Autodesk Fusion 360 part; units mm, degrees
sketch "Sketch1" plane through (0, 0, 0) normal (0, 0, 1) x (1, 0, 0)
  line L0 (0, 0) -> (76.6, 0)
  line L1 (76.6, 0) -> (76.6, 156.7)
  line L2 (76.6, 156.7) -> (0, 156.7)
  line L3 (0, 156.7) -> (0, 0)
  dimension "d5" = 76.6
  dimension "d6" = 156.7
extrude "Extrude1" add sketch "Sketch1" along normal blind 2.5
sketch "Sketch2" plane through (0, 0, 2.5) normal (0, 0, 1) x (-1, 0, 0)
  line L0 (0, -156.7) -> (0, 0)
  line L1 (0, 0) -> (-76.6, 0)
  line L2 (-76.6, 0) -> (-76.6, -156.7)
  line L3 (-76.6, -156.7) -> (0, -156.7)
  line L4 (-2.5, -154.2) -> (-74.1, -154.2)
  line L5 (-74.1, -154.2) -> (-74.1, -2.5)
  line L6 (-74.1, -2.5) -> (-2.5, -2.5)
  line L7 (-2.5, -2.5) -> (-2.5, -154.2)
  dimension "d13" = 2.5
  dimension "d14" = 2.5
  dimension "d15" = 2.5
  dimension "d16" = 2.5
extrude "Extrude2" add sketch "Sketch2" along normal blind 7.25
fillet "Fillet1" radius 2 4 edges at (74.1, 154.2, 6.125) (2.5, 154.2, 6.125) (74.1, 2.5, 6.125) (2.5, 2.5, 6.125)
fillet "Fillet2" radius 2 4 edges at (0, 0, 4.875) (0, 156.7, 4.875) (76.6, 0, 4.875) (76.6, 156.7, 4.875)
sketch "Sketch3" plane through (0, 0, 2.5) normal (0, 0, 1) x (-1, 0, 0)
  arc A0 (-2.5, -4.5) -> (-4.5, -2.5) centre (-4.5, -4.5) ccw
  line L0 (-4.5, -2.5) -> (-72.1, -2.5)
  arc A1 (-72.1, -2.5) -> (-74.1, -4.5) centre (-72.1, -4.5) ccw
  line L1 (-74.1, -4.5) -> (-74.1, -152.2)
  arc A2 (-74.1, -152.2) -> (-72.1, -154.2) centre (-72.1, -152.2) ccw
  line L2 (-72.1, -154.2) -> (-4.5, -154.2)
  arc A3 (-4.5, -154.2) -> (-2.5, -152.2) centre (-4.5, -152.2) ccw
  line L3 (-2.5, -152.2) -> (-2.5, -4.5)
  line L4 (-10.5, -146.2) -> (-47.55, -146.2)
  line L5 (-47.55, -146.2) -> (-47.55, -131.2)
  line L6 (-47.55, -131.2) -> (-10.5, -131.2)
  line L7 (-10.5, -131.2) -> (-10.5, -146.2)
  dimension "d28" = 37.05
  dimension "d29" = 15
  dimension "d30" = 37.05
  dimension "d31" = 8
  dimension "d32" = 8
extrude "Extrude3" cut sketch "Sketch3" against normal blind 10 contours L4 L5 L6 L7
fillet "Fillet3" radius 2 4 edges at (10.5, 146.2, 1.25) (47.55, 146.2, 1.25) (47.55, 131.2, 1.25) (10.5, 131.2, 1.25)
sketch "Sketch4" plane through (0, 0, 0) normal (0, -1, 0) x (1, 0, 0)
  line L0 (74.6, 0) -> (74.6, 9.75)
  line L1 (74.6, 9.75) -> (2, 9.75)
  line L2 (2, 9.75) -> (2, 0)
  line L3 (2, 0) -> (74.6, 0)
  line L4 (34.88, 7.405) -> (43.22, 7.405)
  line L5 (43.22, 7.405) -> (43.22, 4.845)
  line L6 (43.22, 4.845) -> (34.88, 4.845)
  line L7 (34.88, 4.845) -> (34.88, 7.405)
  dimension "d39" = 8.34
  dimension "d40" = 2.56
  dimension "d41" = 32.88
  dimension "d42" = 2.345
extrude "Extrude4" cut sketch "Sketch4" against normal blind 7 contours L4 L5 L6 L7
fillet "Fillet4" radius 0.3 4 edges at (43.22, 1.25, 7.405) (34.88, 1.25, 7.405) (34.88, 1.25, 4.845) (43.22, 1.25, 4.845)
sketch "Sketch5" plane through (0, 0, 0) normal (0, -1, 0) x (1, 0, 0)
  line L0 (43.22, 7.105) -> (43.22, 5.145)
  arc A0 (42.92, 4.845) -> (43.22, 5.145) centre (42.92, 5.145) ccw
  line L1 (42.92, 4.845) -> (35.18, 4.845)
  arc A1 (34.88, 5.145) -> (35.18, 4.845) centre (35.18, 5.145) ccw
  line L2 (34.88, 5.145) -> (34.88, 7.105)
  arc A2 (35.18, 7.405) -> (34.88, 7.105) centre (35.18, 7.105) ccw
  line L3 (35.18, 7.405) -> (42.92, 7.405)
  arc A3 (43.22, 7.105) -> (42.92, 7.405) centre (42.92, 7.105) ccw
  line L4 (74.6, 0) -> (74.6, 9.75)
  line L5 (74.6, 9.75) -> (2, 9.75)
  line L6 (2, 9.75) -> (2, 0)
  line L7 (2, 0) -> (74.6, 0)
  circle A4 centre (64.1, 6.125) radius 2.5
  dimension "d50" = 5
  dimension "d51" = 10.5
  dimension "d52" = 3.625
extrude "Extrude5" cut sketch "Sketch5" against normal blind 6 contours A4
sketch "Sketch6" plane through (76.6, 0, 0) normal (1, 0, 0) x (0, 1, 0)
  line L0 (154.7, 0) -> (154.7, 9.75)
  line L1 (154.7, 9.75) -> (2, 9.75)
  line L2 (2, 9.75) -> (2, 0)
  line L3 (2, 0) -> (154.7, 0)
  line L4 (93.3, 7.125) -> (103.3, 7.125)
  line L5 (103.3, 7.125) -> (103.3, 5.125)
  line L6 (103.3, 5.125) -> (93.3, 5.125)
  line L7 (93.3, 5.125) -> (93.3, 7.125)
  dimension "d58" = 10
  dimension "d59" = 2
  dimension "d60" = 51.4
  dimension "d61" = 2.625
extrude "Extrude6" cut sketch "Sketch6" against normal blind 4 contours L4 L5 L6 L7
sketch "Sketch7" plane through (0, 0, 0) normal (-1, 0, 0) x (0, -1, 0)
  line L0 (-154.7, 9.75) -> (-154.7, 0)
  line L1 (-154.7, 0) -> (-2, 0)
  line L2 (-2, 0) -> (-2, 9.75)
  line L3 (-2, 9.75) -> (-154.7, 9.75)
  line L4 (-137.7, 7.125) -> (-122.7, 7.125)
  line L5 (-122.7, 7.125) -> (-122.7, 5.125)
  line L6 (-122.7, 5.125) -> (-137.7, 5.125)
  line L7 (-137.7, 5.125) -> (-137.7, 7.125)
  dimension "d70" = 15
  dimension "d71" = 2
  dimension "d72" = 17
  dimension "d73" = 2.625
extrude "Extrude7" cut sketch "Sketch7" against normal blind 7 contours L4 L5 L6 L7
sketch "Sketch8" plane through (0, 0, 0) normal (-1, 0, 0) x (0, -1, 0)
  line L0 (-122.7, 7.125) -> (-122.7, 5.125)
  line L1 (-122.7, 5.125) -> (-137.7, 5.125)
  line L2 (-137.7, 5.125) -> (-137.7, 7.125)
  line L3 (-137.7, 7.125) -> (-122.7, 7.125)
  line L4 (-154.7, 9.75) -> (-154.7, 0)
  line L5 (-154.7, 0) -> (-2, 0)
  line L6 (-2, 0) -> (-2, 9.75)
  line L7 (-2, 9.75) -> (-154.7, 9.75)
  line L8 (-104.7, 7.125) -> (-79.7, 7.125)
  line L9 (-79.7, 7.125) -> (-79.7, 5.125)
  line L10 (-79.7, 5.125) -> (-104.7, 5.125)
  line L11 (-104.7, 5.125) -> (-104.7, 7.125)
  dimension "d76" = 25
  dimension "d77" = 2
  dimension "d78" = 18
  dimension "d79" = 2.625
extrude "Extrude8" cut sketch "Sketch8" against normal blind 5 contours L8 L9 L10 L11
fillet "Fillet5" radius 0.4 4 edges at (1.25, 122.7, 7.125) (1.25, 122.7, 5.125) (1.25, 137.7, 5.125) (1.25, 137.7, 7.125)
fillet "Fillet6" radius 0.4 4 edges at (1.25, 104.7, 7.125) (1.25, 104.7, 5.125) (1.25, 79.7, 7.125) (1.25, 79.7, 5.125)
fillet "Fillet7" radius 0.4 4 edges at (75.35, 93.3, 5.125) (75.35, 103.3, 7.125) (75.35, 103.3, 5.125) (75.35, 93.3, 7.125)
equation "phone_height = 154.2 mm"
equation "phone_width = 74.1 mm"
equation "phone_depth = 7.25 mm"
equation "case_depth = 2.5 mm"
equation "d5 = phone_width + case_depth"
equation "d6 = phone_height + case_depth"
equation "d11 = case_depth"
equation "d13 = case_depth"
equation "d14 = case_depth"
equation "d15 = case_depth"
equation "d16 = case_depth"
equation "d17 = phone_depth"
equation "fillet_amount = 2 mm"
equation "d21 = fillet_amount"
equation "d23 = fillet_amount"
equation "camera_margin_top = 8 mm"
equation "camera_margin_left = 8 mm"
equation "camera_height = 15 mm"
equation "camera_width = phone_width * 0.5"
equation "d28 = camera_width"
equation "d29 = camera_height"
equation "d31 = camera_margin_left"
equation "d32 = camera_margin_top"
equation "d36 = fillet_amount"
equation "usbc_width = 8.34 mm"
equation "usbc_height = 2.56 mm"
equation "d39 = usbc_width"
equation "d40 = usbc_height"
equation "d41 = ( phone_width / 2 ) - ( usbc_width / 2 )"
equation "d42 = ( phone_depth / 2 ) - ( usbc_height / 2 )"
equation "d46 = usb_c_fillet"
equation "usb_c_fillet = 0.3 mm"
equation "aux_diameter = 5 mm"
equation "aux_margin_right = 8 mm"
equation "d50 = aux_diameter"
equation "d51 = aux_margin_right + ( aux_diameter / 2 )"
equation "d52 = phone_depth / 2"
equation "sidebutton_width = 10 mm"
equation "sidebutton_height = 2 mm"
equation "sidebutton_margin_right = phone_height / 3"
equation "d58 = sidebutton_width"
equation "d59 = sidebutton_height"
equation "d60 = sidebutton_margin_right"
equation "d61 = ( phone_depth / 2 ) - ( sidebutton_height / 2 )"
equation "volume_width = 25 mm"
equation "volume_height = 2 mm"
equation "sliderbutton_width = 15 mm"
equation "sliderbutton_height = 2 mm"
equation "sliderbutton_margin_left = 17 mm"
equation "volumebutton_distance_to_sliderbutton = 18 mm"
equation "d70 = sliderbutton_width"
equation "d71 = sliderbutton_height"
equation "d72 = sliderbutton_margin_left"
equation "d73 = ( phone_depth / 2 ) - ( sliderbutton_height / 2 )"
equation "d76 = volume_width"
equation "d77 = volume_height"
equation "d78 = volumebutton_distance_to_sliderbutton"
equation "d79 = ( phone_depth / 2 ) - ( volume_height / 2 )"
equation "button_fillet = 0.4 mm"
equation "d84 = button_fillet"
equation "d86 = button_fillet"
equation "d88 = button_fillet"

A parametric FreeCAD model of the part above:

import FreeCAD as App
import Part
import Sketcher

V = App.Vector


def edges_at(feature, points):
    """Names of the edges that pass closest to the given points."""
    edges = feature.Shape.Edges
    near = lambda p: min(range(len(edges)), key=lambda i: edges[i].distToShape(Part.Vertex(*p))[0])
    return sorted({f"Edge{near(p) + 1}" for p in points})

doc = App.newDocument("Part")
body = doc.addObject("PartDesign::Body", "Body")

# Sketch on XY plane
sketch1 = body.newObject("Sketcher::SketchObject", "Sketch")
sketch1.AttachmentSupport = (doc.getObject("XY_Plane"), [""])
sketch1.MapMode = "FlatFace"
sketch1.addGeometry(Part.LineSegment(V(0, 156.7, 0), V(0, 0, 0)), False)
sketch1.addGeometry(Part.LineSegment(V(0, 0, 0), V(76.6, 0, 0)), False)
sketch1.addGeometry(Part.LineSegment(V(76.6, 0, 0), V(76.6, 156.7, 0)), False)
sketch1.addGeometry(Part.LineSegment(V(76.6, 156.7, 0), V(0, 156.7, 0)), False)
sketch1.addConstraint(Sketcher.Constraint("Coincident", 0, 2, 1, 1))
sketch1.addConstraint(Sketcher.Constraint("Coincident", 1, 2, 2, 1))
sketch1.addConstraint(Sketcher.Constraint("Coincident", 2, 2, 3, 1))
sketch1.addConstraint(Sketcher.Constraint("Coincident", 3, 2, 0, 1))
sketch1.addConstraint(Sketcher.Constraint("Vertical", 0))
sketch1.addConstraint(Sketcher.Constraint("Horizontal", 1))
sketch1.addConstraint(Sketcher.Constraint("Vertical", 2))
sketch1.addConstraint(Sketcher.Constraint("Horizontal", 3))
sketch1.addConstraint(Sketcher.Constraint("Coincident", 0, 2, -1, 1))
sketch1.addConstraint(Sketcher.Constraint("DistanceX", 1, 1, 1, 2, 76.6))
sketch1.addConstraint(Sketcher.Constraint("DistanceY", 0, 2, 0, 1, 156.7))
pad1 = body.newObject("PartDesign::Pad", "Pad")
pad1.Profile = sketch1
pad1.Length = 2.5

# Sketch on XY plane
sketch2 = body.newObject("Sketcher::SketchObject", "Sketch001")
sketch2.AttachmentSupport = (doc.getObject("XY_Plane"), [""])
sketch2.MapMode = "FlatFace"
sketch2.AttachmentOffset = App.Placement(V(0, 0, 2.5), App.Rotation())
sketch2.addGeometry(Part.LineSegment(V(76.6, 156.7, 0), V(0, 156.7, 0)), False)
sketch2.addGeometry(Part.LineSegment(V(0, 156.7, 0), V(0, 0, 0)), False)
sketch2.addGeometry(Part.LineSegment(V(0, 0, 0), V(76.6, 0, 0)), False)
sketch2.addGeometry(Part.LineSegment(V(76.6, 0, 0), V(76.6, 156.7, 0)), False)
sketch2.addGeometry(Part.LineSegment(V(2.5, 2.5, 0), V(2.5, 154.2, 0)), False)
sketch2.addGeometry(Part.LineSegment(V(2.5, 154.2, 0), V(74.1, 154.2, 0)), False)
sketch2.addGeometry(Part.LineSegment(V(74.1, 154.2, 0), V(74.1, 2.5, 0)), False)
sketch2.addGeometry(Part.LineSegment(V(74.1, 2.5, 0), V(2.5, 2.5, 0)), False)
sketch2.addConstraint(Sketcher.Constraint("Coincident", 0, 2, 1, 1))
sketch2.addConstraint(Sketcher.Constraint("Coincident", 1, 2, 2, 1))
sketch2.addConstraint(Sketcher.Constraint("Coincident", 2, 2, 3, 1))
sketch2.addConstraint(Sketcher.Constraint("Coincident", 3, 2, 0, 1))
sketch2.addConstraint(Sketcher.Constraint("Coincident", 4, 2, 5, 1))
sketch2.addConstraint(Sketcher.Constraint("Coincident", 5, 2, 6, 1))
sketch2.addConstraint(Sketcher.Constraint("Coincident", 6, 2, 7, 1))
sketch2.addConstraint(Sketcher.Constraint("Coincident", 7, 2, 4, 1))
sketch2.addConstraint(Sketcher.Constraint("Horizontal", 0))
sketch2.addConstraint(Sketcher.Constraint("Vertical", 1))
sketch2.addConstraint(Sketcher.Constraint("Horizontal", 2))
sketch2.addConstraint(Sketcher.Constraint("Vertical", 3))
sketch2.addConstraint(Sketcher.Constraint("Vertical", 4))
sketch2.addConstraint(Sketcher.Constraint("Horizontal", 5))
sketch2.addConstraint(Sketcher.Constraint("Vertical", 6))
sketch2.addConstraint(Sketcher.Constraint("Horizontal", 7))
sketch2.addConstraint(Sketcher.Constraint("Coincident", 1, 2, -1, 1))
sketch2.addConstraint(Sketcher.Constraint("DistanceX", -1, 1, 4, 2, 2.5))
sketch2.addConstraint(Sketcher.Constraint("DistanceY", -1, 1, 6, 2, 2.5))
sketch2.addConstraint(Sketcher.Constraint("DistanceY", 4, 2, 0, 2, 2.5))
sketch2.addConstraint(Sketcher.Constraint("DistanceX", 5, 2, 3, 2, 2.5))
sketch2.addConstraint(Sketcher.Constraint("DistanceX", 0, 2, 0, 1, 76.6))
sketch2.addConstraint(Sketcher.Constraint("DistanceY", 1, 2, 1, 1, 156.7))
pad2 = body.newObject("PartDesign::Pad", "Pad001")
pad2.Profile = sketch2
pad2.Length = 7.25
doc.recompute()

fillet = body.newObject("PartDesign::Fillet", "Fillet")
fillet.Base = (pad2, edges_at(pad2, [
    (74.1, 154.2, 6.125),
    (2.5, 154.2, 6.125),
    (74.1, 2.5, 6.125),
    (2.5, 2.5, 6.125),
]))
fillet.Radius = 2
doc.recompute()

fillet2 = body.newObject("PartDesign::Fillet", "Fillet001")
fillet2.Base = (fillet, edges_at(fillet, [
    (0, 0, 4.875),
    (0, 156.7, 4.875),
    (76.6, 0, 4.875),
    (76.6, 156.7, 4.875),
]))
fillet2.Radius = 2

# Sketch on XY plane
sketch3 = body.newObject("Sketcher::SketchObject", "Sketch002")
sketch3.AttachmentSupport = (doc.getObject("XY_Plane"), [""])
sketch3.MapMode = "FlatFace"
sketch3.AttachmentOffset = App.Placement(V(0, 0, 2.5), App.Rotation())
sketch3.addGeometry(Part.LineSegment(V(47.55, 146.2, 0), V(10.5, 146.2, 0)), False)
sketch3.addGeometry(Part.LineSegment(V(10.5, 146.2, 0), V(10.5, 131.2, 0)), False)
sketch3.addGeometry(Part.LineSegment(V(10.5, 131.2, 0), V(47.55, 131.2, 0)), False)
sketch3.addGeometry(Part.LineSegment(V(47.55, 131.2, 0), V(47.55, 146.2, 0)), False)
sketch3.addConstraint(Sketcher.Constraint("Coincident", 0, 2, 1, 1))
sketch3.addConstraint(Sketcher.Constraint("Coincident", 1, 2, 2, 1))
sketch3.addConstraint(Sketcher.Constraint("Coincident", 2, 2, 3, 1))
sketch3.addConstraint(Sketcher.Constraint("Coincident", 3, 2, 0, 1))
sketch3.addConstraint(Sketcher.Constraint("Horizontal", 0))
sketch3.addConstraint(Sketcher.Constraint("Vertical", 1))
sketch3.addConstraint(Sketcher.Constraint("Horizontal", 2))
sketch3.addConstraint(Sketcher.Constraint("Vertical", 3))
sketch3.addConstraint(Sketcher.Constraint("DistanceY", 1, 2, 1, 1, 15.0))
sketch3.addConstraint(Sketcher.Constraint("DistanceX", 0, 2, 0, 1, 37.05))
sketch3.addConstraint(Sketcher.Constraint("DistanceX", -1, 1, 0, 2, 10.5))
sketch3.addConstraint(Sketcher.Constraint("DistanceY", -1, 1, 0, 2, 146.2))
pocket1 = body.newObject("PartDesign::Pocket", "Pocket")
pocket1.Profile = sketch3
pocket1.Length = 10
doc.recompute()

fillet3 = body.newObject("PartDesign::Fillet", "Fillet002")
fillet3.Base = (pocket1, edges_at(pocket1, [
    (10.5, 146.2, 1.25),
    (47.55, 146.2, 1.25),
    (47.55, 131.2, 1.25),
    (10.5, 131.2, 1.25),
]))
fillet3.Radius = 2

# Sketch on XZ plane
sketch4 = body.newObject("Sketcher::SketchObject", "Sketch003")
sketch4.AttachmentSupport = (doc.getObject("XZ_Plane"), [""])
sketch4.MapMode = "FlatFace"
sketch4.addGeometry(Part.LineSegment(V(43.22, 7.405, 0), V(34.88, 7.405, 0)), False)
sketch4.addGeometry(Part.LineSegment(V(34.88, 7.405, 0), V(34.88, 4.845, 0)), False)
sketch4.addGeometry(Part.LineSegment(V(34.88, 4.845, 0), V(43.22, 4.845, 0)), False)
sketch4.addGeometry(Part.LineSegment(V(43.22, 4.845, 0), V(43.22, 7.405, 0)), False)
sketch4.addConstraint(Sketcher.Constraint("Coincident", 0, 2, 1, 1))
sketch4.addConstraint(Sketcher.Constraint("Coincident", 1, 2, 2, 1))
sketch4.addConstraint(Sketcher.Constraint("Coincident", 2, 2, 3, 1))
sketch4.addConstraint(Sketcher.Constraint("Coincident", 3, 2, 0, 1))
sketch4.addConstraint(Sketcher.Constraint("Horizontal", 0))
sketch4.addConstraint(Sketcher.Constraint("Vertical", 1))
sketch4.addConstraint(Sketcher.Constraint("Horizontal", 2))
sketch4.addConstraint(Sketcher.Constraint("Vertical", 3))
sketch4.addConstraint(Sketcher.Constraint("DistanceX", 0, 2, 0, 1, 8.34))
sketch4.addConstraint(Sketcher.Constraint("DistanceY", 1, 2, 1, 1, 2.56))
sketch4.addConstraint(Sketcher.Constraint("DistanceX", -1, 1, 0, 2, 34.88))
sketch4.addConstraint(Sketcher.Constraint("DistanceY", -1, 1, 0, 2, 7.405))
pocket2 = body.newObject("PartDesign::Pocket", "Pocket001")
pocket2.Profile = sketch4
pocket2.Length = 7
doc.recompute()

fillet4 = body.newObject("PartDesign::Fillet", "Fillet003")
fillet4.Base = (pocket2, edges_at(pocket2, [
    (43.22, 1.25, 7.405),
    (34.88, 1.25, 7.405),
    (34.88, 1.25, 4.845),
    (43.22, 1.25, 4.845),
]))
fillet4.Radius = 0.3

# Sketch on XZ plane
sketch5 = body.newObject("Sketcher::SketchObject", "Sketch004")
sketch5.AttachmentSupport = (doc.getObject("XZ_Plane"), [""])
sketch5.MapMode = "FlatFace"
sketch5.addGeometry(Part.Circle(V(64.1, 6.125, 0), V(0, 0, 1), 2.5), False)
sketch5.addConstraint(Sketcher.Constraint("Diameter", 0, 5.0))
sketch5.addConstraint(Sketcher.Constraint("DistanceX", -1, 1, 0, 3, 64.1))
sketch5.addConstraint(Sketcher.Constraint("DistanceY", -1, 1, 0, 3, 6.125))
pocket3 = body.newObject("PartDesign::Pocket", "Pocket002")
pocket3.Profile = sketch5
pocket3.Length = 6

# Sketch on YZ plane
sketch6 = body.newObject("Sketcher::SketchObject", "Sketch005")
sketch6.AttachmentSupport = (doc.getObject("YZ_Plane"), [""])
sketch6.MapMode = "FlatFace"
sketch6.AttachmentOffset = App.Placement(V(0, 0, 76.6), App.Rotation())
sketch6.addGeometry(Part.LineSegment(V(103.3, 7.125, 0), V(93.3, 7.125, 0)), False)
sketch6.addGeometry(Part.LineSegment(V(93.3, 7.125, 0), V(93.3, 5.125, 0)), False)
sketch6.addGeometry(Part.LineSegment(V(93.3, 5.125, 0), V(103.3, 5.125, 0)), False)
sketch6.addGeometry(Part.LineSegment(V(103.3, 5.125, 0), V(103.3, 7.125, 0)), False)
sketch6.addConstraint(Sketcher.Constraint("Coincident", 0, 2, 1, 1))
sketch6.addConstraint(Sketcher.Constraint("Coincident", 1, 2, 2, 1))
sketch6.addConstraint(Sketcher.Constraint("Coincident", 2, 2, 3, 1))
sketch6.addConstraint(Sketcher.Constraint("Coincident", 3, 2, 0, 1))
sketch6.addConstraint(Sketcher.Constraint("Horizontal", 0))
sketch6.addConstraint(Sketcher.Constraint("Vertical", 1))
sketch6.addConstraint(Sketcher.Constraint("Horizontal", 2))
sketch6.addConstraint(Sketcher.Constraint("Vertical", 3))
sketch6.addConstraint(Sketcher.Constraint("DistanceX", 0, 2, 0, 1, 10.0))
sketch6.addConstraint(Sketcher.Constraint("DistanceY", 1, 2, 1, 1, 2.0))
sketch6.addConstraint(Sketcher.Constraint("DistanceX", -1, 1, 0, 2, 93.3))
sketch6.addConstraint(Sketcher.Constraint("DistanceY", -1, 1, 0, 2, 7.125))
pocket4 = body.newObject("PartDesign::Pocket", "Pocket003")
pocket4.Profile = sketch6
pocket4.Length = 4

# Sketch on YZ plane
sketch7 = body.newObject("Sketcher::SketchObject", "Sketch006")
sketch7.AttachmentSupport = (doc.getObject("YZ_Plane"), [""])
sketch7.MapMode = "FlatFace"
sketch7.addGeometry(Part.LineSegment(V(122.7, 7.125, 0), V(137.7, 7.125, 0)), False)
sketch7.addGeometry(Part.LineSegment(V(137.7, 7.125, 0), V(137.7, 5.125, 0)), False)
sketch7.addGeometry(Part.LineSegment(V(137.7, 5.125, 0), V(122.7, 5.125, 0)), False)
sketch7.addGeometry(Part.LineSegment(V(122.7, 5.125, 0), V(122.7, 7.125, 0)), False)
sketch7.addConstraint(Sketcher.Constraint("Coincident", 0, 2, 1, 1))
sketch7.addConstraint(Sketcher.Constraint("Coincident", 1, 2, 2, 1))
sketch7.addConstraint(Sketcher.Constraint("Coincident", 2, 2, 3, 1))
sketch7.addConstraint(Sketcher.Constraint("Coincident", 3, 2, 0, 1))
sketch7.addConstraint(Sketcher.Constraint("Horizontal", 0))
sketch7.addConstraint(Sketcher.Constraint("Vertical", 1))
sketch7.addConstraint(Sketcher.Constraint("Horizontal", 2))
sketch7.addConstraint(Sketcher.Constraint("Vertical", 3))
sketch7.addConstraint(Sketcher.Constraint("DistanceX", 0, 1, 0, 2, 15.0))
sketch7.addConstraint(Sketcher.Constraint("DistanceY", 1, 2, 1, 1, 2.0))
sketch7.addConstraint(Sketcher.Constraint("DistanceX", -1, 1, 0, 2, 137.7))
sketch7.addConstraint(Sketcher.Constraint("DistanceY", -1, 1, 0, 2, 7.125))
pocket5 = body.newObject("PartDesign::Pocket", "Pocket004")
pocket5.Profile = sketch7
pocket5.Length = 7
pocket5.Reversed = True

# Sketch on YZ plane
sketch8 = body.newObject("Sketcher::SketchObject", "Sketch007")
sketch8.AttachmentSupport = (doc.getObject("YZ_Plane"), [""])
sketch8.MapMode = "FlatFace"
sketch8.addGeometry(Part.LineSegment(V(79.7, 7.125, 0), V(104.7, 7.125, 0)), False)
sketch8.addGeometry(Part.LineSegment(V(104.7, 7.125, 0), V(104.7, 5.125, 0)), False)
sketch8.addGeometry(Part.LineSegment(V(104.7, 5.125, 0), V(79.7, 5.125, 0)), False)
sketch8.addGeometry(Part.LineSegment(V(79.7, 5.125, 0), V(79.7, 7.125, 0)), False)
sketch8.addConstraint(Sketcher.Constraint("Coincident", 0, 2, 1, 1))
sketch8.addConstraint(Sketcher.Constraint("Coincident", 1, 2, 2, 1))
sketch8.addConstraint(Sketcher.Constraint("Coincident", 2, 2, 3, 1))
sketch8.addConstraint(Sketcher.Constraint("Coincident", 3, 2, 0, 1))
sketch8.addConstraint(Sketcher.Constraint("Horizontal", 0))
sketch8.addConstraint(Sketcher.Constraint("Vertical", 1))
sketch8.addConstraint(Sketcher.Constraint("Horizontal", 2))
sketch8.addConstraint(Sketcher.Constraint("Vertical", 3))
sketch8.addConstraint(Sketcher.Constraint("DistanceX", 0, 1, 0, 2, 25.0))
sketch8.addConstraint(Sketcher.Constraint("DistanceY", 1, 2, 1, 1, 2.0))
sketch8.addConstraint(Sketcher.Constraint("DistanceX", -1, 1, 0, 2, 104.7))
sketch8.addConstraint(Sketcher.Constraint("DistanceY", -1, 1, 0, 2, 7.125))
pocket6 = body.newObject("PartDesign::Pocket", "Pocket005")
pocket6.Profile = sketch8
pocket6.Length = 5
pocket6.Reversed = True
doc.recompute()

fillet5 = body.newObject("PartDesign::Fillet", "Fillet004")
fillet5.Base = (pocket6, edges_at(pocket6, [
    (1.25, 122.7, 7.125),
    (1.25, 122.7, 5.125),
    (1.25, 137.7, 5.125),
    (1.25, 137.7, 7.125),
]))
fillet5.Radius = 0.4
doc.recompute()

fillet6 = body.newObject("PartDesign::Fillet", "Fillet005")
fillet6.Base = (fillet5, edges_at(fillet5, [
    (1.25, 104.7, 7.125),
    (1.25, 104.7, 5.125),
    (1.25, 79.7, 7.125),
    (1.25, 79.7, 5.125),
]))
fillet6.Radius = 0.4
doc.recompute()

fillet7 = body.newObject("PartDesign::Fillet", "Fillet006")
fillet7.Base = (fillet6, edges_at(fillet6, [
    (75.35, 93.3, 5.125),
    (75.35, 103.3, 7.125),
    (75.35, 103.3, 5.125),
    (75.35, 93.3, 7.125),
]))
fillet7.Radius = 0.4

doc.recompute()
